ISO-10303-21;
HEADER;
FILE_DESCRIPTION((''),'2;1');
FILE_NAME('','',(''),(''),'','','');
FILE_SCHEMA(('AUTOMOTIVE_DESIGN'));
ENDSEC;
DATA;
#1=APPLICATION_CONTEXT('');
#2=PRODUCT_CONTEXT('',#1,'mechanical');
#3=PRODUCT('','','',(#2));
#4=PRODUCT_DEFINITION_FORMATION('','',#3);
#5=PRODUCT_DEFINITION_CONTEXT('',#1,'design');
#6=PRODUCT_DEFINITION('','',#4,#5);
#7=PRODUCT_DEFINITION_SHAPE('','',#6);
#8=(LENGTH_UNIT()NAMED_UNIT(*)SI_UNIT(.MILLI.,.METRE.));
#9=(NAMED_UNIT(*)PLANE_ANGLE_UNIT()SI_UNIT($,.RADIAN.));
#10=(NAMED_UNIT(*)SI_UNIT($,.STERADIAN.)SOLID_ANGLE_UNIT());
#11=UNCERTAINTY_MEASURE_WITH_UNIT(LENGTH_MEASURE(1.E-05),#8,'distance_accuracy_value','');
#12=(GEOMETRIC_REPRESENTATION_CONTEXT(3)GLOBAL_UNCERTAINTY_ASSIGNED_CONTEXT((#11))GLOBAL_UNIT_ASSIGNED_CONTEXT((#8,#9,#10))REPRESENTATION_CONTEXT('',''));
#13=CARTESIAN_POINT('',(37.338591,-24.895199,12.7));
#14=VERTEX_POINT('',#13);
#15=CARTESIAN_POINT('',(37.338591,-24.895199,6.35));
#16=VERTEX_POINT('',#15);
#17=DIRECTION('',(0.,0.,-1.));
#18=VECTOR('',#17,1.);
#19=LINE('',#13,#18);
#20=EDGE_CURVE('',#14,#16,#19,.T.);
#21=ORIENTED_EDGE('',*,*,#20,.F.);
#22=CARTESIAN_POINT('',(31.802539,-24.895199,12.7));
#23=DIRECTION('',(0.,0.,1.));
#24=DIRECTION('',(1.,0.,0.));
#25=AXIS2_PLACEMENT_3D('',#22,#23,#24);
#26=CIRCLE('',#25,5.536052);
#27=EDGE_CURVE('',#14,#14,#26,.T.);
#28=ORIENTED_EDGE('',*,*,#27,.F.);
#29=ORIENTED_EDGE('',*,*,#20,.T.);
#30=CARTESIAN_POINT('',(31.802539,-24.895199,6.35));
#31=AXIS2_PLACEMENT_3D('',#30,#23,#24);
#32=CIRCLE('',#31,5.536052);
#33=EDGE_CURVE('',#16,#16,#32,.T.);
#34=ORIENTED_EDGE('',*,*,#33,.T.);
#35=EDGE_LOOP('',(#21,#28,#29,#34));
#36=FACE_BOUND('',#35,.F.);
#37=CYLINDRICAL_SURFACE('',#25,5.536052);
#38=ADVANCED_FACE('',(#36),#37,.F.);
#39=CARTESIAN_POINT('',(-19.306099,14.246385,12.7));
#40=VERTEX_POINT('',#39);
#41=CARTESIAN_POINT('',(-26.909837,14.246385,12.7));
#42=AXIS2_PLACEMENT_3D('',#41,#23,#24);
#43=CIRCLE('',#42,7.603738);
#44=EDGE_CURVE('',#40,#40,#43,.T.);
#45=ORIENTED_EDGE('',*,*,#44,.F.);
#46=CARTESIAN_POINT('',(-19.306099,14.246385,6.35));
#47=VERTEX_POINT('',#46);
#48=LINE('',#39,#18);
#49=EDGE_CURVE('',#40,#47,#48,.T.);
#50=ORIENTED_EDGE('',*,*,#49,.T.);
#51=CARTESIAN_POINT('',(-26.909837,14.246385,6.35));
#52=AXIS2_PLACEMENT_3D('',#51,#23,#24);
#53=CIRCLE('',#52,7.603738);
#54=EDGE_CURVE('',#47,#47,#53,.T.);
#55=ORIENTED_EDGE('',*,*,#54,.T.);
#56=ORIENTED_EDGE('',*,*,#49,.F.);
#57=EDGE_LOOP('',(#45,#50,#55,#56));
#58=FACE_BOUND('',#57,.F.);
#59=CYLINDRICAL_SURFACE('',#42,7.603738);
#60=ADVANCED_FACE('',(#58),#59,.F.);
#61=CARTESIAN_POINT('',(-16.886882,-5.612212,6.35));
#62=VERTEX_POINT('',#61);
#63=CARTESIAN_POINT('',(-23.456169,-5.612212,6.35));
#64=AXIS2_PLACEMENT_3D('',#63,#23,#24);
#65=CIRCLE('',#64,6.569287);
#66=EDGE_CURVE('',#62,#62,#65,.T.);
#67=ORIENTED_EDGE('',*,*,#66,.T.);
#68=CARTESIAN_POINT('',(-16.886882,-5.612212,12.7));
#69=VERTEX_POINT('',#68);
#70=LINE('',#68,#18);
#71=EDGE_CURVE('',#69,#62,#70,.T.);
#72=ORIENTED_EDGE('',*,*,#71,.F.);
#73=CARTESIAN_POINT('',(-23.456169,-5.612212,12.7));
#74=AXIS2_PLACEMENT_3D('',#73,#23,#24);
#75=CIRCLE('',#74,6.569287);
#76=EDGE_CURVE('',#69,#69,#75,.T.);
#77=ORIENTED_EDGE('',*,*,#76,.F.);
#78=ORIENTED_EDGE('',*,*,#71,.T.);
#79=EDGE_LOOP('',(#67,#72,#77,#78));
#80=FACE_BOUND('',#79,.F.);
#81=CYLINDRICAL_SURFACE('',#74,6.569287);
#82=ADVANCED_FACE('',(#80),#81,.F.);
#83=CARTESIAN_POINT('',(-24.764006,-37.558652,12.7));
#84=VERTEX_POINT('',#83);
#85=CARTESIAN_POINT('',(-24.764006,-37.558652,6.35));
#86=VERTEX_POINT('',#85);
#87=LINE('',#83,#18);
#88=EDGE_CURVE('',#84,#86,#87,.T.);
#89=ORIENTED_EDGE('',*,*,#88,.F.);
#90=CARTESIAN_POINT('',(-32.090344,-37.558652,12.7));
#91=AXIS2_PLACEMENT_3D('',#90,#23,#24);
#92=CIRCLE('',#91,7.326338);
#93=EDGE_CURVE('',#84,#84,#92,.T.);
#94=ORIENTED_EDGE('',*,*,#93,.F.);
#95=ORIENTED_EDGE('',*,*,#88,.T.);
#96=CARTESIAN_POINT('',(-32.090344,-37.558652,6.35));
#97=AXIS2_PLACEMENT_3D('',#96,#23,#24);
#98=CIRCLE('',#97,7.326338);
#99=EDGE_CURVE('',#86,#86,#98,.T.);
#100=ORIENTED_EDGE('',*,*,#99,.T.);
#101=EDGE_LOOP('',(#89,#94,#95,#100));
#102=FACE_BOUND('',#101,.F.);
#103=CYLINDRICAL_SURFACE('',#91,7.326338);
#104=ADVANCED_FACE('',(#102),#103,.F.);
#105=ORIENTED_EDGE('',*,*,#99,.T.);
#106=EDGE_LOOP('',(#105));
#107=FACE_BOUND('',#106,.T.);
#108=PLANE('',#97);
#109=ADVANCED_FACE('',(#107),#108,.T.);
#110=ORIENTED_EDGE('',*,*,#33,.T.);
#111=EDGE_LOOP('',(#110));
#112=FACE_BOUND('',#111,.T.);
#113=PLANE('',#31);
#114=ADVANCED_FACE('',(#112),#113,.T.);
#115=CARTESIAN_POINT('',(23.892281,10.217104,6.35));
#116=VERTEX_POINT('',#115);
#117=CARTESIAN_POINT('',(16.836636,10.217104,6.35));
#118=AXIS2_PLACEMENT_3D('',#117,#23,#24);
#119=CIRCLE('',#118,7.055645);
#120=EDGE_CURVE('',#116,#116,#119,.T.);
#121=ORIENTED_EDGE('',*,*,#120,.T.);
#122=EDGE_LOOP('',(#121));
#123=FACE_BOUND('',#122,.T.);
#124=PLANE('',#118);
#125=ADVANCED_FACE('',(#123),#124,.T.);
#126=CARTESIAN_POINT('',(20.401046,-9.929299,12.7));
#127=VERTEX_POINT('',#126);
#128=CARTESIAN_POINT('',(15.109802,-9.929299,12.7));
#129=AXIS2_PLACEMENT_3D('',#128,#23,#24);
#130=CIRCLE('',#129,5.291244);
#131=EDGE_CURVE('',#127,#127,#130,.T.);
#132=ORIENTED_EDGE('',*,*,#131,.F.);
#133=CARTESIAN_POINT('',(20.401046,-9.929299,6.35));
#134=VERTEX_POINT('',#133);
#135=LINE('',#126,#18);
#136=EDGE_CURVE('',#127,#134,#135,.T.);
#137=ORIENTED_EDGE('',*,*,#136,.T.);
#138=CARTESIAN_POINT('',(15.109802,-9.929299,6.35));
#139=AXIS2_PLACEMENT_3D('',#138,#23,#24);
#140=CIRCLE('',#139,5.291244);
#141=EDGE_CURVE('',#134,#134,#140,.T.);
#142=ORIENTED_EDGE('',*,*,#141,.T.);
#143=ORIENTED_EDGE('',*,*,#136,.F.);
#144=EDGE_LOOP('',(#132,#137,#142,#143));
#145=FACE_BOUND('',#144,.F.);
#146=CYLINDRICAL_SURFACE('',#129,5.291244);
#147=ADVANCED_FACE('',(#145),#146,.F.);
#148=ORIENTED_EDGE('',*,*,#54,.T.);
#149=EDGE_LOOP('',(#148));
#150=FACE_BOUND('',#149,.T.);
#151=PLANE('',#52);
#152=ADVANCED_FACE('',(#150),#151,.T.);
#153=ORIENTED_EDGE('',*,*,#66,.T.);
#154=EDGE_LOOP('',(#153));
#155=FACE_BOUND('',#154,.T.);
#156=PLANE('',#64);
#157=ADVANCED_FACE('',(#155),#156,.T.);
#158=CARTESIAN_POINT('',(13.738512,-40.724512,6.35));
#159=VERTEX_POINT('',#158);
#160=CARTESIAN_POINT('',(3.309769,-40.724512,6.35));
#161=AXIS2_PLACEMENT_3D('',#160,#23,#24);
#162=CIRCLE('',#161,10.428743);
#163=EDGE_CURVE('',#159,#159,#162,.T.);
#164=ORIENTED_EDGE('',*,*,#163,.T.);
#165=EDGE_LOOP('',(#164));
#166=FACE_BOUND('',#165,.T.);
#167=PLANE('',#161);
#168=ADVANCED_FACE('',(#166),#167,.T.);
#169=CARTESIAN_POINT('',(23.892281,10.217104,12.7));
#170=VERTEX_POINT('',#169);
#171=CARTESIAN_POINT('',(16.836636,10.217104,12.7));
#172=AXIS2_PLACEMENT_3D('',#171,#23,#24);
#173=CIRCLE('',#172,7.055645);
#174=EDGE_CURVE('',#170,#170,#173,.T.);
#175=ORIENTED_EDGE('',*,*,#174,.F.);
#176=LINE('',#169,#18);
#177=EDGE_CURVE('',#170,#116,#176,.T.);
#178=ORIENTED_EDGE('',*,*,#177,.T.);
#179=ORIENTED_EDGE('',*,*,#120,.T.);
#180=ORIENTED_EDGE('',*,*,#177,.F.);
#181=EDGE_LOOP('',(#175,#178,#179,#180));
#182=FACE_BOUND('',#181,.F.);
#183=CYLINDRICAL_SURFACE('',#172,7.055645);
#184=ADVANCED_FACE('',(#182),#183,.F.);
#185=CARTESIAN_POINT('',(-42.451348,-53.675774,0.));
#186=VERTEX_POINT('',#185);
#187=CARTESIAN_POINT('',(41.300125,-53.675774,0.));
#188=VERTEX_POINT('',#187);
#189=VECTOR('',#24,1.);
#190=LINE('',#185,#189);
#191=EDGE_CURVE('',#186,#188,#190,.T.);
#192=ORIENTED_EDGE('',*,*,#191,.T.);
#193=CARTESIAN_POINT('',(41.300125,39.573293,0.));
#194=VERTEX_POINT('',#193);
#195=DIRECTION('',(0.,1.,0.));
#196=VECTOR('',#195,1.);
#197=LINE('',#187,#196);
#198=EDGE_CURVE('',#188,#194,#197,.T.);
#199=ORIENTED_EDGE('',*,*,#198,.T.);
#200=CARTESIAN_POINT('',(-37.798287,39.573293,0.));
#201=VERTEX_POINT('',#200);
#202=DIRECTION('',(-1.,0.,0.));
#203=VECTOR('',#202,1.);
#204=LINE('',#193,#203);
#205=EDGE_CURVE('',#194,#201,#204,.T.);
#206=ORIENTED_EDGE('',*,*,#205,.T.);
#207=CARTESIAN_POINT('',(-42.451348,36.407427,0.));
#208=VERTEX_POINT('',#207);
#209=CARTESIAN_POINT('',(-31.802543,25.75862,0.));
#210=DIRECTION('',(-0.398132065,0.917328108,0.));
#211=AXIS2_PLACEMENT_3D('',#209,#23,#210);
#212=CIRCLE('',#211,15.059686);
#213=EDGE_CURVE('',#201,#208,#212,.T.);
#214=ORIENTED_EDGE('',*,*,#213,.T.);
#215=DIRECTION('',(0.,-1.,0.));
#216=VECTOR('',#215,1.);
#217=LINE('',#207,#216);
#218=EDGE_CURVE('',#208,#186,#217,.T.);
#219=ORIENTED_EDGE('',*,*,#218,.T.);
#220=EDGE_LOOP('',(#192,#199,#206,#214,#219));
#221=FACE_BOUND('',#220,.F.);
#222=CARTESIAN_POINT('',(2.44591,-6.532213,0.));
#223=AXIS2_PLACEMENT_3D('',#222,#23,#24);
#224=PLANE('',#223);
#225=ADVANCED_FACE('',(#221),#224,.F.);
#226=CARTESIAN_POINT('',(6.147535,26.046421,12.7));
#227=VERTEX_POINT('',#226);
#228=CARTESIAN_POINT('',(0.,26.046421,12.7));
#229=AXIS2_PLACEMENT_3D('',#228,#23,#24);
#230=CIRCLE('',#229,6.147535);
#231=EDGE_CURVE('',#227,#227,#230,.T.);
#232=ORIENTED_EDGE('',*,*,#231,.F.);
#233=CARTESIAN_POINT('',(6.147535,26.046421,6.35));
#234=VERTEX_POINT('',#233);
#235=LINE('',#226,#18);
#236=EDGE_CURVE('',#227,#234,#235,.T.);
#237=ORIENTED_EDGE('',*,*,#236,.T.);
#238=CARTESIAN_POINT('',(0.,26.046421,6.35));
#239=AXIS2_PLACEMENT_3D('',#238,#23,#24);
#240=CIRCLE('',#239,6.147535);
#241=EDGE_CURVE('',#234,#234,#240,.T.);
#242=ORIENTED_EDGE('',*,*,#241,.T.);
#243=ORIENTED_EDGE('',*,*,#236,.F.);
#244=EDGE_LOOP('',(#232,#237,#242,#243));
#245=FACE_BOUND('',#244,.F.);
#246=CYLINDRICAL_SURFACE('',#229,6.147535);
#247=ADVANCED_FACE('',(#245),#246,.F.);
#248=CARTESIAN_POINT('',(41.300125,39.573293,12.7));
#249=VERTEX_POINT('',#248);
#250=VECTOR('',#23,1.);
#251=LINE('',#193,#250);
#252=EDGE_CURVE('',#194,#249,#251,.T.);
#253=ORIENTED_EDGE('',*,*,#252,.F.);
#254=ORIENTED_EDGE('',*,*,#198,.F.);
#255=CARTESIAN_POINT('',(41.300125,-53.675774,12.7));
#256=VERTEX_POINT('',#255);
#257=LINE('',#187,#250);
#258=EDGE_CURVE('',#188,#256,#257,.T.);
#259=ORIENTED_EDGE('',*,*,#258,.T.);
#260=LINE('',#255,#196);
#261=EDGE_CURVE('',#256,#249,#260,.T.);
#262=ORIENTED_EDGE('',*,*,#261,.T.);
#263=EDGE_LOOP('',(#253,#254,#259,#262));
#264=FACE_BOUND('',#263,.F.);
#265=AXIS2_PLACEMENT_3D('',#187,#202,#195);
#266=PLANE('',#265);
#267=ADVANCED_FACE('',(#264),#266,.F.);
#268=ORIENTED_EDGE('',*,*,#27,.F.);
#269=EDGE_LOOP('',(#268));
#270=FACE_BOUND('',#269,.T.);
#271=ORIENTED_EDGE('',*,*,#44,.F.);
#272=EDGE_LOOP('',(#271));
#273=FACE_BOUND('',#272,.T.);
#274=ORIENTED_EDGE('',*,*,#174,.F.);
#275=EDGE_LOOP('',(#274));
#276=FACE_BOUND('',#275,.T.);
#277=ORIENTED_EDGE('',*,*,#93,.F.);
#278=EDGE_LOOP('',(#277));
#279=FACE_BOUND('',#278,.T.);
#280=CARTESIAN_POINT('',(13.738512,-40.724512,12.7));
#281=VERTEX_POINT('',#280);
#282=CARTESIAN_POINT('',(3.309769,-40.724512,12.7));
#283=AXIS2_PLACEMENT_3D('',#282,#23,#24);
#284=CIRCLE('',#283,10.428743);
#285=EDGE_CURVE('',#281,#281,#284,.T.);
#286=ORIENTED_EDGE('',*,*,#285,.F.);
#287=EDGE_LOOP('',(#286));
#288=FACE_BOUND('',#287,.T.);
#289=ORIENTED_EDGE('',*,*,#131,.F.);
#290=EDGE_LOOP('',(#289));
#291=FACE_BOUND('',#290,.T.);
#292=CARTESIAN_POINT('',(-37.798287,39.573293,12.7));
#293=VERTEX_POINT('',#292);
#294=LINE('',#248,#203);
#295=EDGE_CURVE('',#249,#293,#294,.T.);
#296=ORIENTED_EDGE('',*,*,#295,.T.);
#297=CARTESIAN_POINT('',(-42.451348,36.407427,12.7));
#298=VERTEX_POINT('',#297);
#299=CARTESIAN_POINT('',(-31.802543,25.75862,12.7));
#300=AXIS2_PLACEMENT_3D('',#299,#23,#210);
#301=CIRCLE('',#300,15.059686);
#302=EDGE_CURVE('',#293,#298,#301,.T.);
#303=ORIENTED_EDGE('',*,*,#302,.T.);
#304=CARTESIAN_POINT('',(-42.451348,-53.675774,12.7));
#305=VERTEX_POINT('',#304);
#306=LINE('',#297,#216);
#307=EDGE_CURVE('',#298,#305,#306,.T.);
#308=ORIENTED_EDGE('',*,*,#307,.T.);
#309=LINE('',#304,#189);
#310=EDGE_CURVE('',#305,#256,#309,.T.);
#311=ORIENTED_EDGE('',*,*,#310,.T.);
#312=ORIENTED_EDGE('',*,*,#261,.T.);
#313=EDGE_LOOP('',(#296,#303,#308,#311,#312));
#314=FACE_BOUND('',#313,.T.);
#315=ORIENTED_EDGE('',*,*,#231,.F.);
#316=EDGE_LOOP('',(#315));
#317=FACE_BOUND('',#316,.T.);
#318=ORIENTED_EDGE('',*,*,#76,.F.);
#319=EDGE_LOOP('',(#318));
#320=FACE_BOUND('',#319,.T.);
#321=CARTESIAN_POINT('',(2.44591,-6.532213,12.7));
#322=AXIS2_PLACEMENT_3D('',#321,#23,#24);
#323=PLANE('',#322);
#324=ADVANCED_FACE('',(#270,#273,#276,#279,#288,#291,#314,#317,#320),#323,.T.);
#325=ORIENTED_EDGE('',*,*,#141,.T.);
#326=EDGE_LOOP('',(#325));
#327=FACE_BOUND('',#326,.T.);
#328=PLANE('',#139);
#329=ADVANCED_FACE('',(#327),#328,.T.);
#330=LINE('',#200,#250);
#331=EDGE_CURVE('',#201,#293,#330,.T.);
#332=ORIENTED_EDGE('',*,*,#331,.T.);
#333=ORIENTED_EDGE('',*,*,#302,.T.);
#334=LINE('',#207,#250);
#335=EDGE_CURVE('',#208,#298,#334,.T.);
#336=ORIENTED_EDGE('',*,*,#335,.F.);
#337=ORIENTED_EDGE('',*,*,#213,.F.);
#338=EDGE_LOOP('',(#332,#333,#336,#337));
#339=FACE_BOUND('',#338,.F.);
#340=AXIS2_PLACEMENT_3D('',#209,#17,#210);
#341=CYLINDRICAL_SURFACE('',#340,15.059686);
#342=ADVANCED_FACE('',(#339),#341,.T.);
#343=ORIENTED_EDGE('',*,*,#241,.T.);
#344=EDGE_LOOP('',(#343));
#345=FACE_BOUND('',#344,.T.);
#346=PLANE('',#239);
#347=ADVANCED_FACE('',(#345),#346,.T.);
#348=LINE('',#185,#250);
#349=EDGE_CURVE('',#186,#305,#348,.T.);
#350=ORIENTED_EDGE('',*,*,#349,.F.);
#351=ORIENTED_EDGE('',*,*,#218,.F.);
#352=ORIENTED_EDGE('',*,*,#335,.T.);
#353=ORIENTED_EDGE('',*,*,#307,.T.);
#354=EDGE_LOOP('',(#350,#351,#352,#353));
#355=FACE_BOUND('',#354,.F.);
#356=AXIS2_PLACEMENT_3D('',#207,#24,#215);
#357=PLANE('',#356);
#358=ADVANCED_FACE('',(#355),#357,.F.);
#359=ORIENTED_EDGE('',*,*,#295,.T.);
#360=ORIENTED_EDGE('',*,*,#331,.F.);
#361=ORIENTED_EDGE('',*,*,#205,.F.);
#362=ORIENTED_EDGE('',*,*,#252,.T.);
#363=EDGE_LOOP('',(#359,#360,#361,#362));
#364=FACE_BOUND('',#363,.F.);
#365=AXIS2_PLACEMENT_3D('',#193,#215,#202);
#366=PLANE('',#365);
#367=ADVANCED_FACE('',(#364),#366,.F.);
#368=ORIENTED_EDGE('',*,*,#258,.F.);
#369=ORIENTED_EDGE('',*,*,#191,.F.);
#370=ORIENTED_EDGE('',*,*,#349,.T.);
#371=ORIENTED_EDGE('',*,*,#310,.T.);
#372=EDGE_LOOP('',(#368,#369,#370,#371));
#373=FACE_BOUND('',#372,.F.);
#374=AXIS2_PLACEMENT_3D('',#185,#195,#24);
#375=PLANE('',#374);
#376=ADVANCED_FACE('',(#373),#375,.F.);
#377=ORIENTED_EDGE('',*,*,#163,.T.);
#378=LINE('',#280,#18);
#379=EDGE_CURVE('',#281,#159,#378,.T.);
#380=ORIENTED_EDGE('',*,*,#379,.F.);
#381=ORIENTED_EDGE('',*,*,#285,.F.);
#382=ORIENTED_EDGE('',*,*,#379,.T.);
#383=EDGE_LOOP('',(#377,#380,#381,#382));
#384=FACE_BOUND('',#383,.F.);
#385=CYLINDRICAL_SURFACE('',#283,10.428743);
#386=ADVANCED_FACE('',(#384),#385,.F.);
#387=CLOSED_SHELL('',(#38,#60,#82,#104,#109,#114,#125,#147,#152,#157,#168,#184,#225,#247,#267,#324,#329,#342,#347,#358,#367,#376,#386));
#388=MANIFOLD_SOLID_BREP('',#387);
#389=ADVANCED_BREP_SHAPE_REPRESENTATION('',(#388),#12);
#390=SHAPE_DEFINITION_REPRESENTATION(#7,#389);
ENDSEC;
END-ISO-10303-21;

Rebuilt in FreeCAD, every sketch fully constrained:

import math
import FreeCAD as App
import Part
import Sketcher
Q = App.Units.Quantity

doc = App.newDocument("Part")
body = doc.addObject("PartDesign::Body", "Body")

sketch1 = doc.addObject("Sketcher::SketchObject", "Sketch")
body.addObject(sketch1)
sketch1.AttachmentSupport = (doc.XY_Plane, [""])
sketch1.MapMode = "FlatFace"
sketch1.addGeometry(Part.LineSegment(App.Vector(-42, -54, 0), App.Vector(41, -54, 0)), False)
sketch1.addGeometry(Part.LineSegment(App.Vector(41, -54, 0), App.Vector(41, 40, 0)), False)
sketch1.addGeometry(Part.LineSegment(App.Vector(41, 40, 0), App.Vector(-38, 40, 0)), False)
sketch1.addGeometry(Part.ArcOfCircle(Part.Circle(App.Vector(-32, 26, 0), App.Vector(0, 0, 1), 15), math.radians(113), math.radians(135)), False)
sketch1.addGeometry(Part.LineSegment(App.Vector(-42, 36, 0), App.Vector(-42, -54, 0)), False)
sketch1.addConstraint(Sketcher.Constraint("Coincident", 0, 2, 1, 1))
sketch1.addConstraint(Sketcher.Constraint("Coincident", 1, 2, 2, 1))
sketch1.addConstraint(Sketcher.Constraint("Coincident", 2, 2, 3, 1))
sketch1.addConstraint(Sketcher.Constraint("Coincident", 3, 2, 4, 1))
sketch1.addConstraint(Sketcher.Constraint("Coincident", 4, 2, 0, 1))
sketch1.addConstraint(Sketcher.Constraint("Horizontal", 0))
sketch1.addConstraint(Sketcher.Constraint("Vertical", 1))
sketch1.addConstraint(Sketcher.Constraint("Horizontal", 2))
sketch1.addConstraint(Sketcher.Constraint("Vertical", 4))
sketch1.addConstraint(Sketcher.Constraint("DistanceY", 4, 2, 4, 1, 90.083201))
sketch1.addConstraint(Sketcher.Constraint("Radius", 3, 15.059686))
sketch1.addConstraint(Sketcher.Constraint("DistanceX", 2, 2, 2, 1, 79.098412))
sketch1.addConstraint(Sketcher.Constraint("DistanceX", 0, 1, 0, 2, 83.751473))
sketch1.addConstraint(Sketcher.Constraint("DistanceY", 1, 1, 1, 2, 93.249067))
sketch1.addConstraint(Sketcher.Constraint("DistanceY", -1, 1, 3, 3, 25.75862))
sketch1.addConstraint(Sketcher.Constraint("DistanceX", 3, 2, -1, 1, 42.451348))
pad1 = doc.addObject("PartDesign::Pad", "Pad")
body.addObject(pad1)
pad1.Profile = sketch1
pad1.Length = Q("0.5 in")

sketch2 = doc.addObject("Sketcher::SketchObject", "Sketch001")
body.addObject(sketch2)
sketch2.AttachmentSupport = (doc.XY_Plane, [""])
sketch2.MapMode = "FlatFace"
sketch2.AttachmentOffset = App.Placement(App.Vector(0, 0, 0.5 * 25.4), App.Rotation())
sketch2.addGeometry(Part.Circle(App.Vector(-27, 14, 0), App.Vector(0, 0, 1), 8), False)
sketch2.addGeometry(Part.Circle(App.Vector(32, -25, 0), App.Vector(0, 0, 1), 6), False)
sketch2.addGeometry(Part.Circle(App.Vector(-32, -38, 0), App.Vector(0, 0, 1), 7), False)
sketch2.addGeometry(Part.Circle(App.Vector(17, 10, 0), App.Vector(0, 0, 1), 7), False)
sketch2.addGeometry(Part.Circle(App.Vector(3, -41, 0), App.Vector(0, 0, 1), 10), False)
sketch2.addGeometry(Part.Circle(App.Vector(0, 26, 0), App.Vector(0, 0, 1), 6), False)
sketch2.addGeometry(Part.Circle(App.Vector(-23, -6, 0), App.Vector(0, 0, 1), 7), False)
sketch2.addGeometry(Part.Circle(App.Vector(15, -10, 0), App.Vector(0, 0, 1), 5), False)
sketch2.addConstraint(Sketcher.Constraint("PointOnObject", 5, 3, -2))
sketch2.addConstraint(Sketcher.Constraint("Diameter", 3, 14.11129))
sketch2.addConstraint(Sketcher.Constraint("Diameter", 5, 12.29507))
sketch2.addConstraint(Sketcher.Constraint("Diameter", 0, 15.207476))
sketch2.addConstraint(Sketcher.Constraint("Diameter", 1, 11.072104))
sketch2.addConstraint(Sketcher.Constraint("Diameter", 2, 14.652676))
sketch2.addConstraint(Sketcher.Constraint("Diameter", 4, 20.857486))
sketch2.addConstraint(Sketcher.Constraint("Diameter", 6, 13.138574))
sketch2.addConstraint(Sketcher.Constraint("Diameter", 7, 10.582488))
sketch2.addConstraint(Sketcher.Constraint("DistanceY", 1, 3, -1, 1, 24.895199))
sketch2.addConstraint(Sketcher.Constraint("DistanceY", 7, 3, -1, 1, 9.929299))
sketch2.addConstraint(Sketcher.Constraint("DistanceY", 4, 3, 6, 3, 35.1123))
sketch2.addConstraint(Sketcher.Constraint("DistanceX", -1, 1, 1, 3, 31.802539))
sketch2.addConstraint(Sketcher.Constraint("DistanceX", -1, 1, 4, 3, 3.309769))
sketch2.addConstraint(Sketcher.Constraint("DistanceY", 4, 3, -1, 1, 40.724512))
sketch2.addConstraint(Sketcher.Constraint("DistanceY", -1, 1, 5, 3, 26.046421))
sketch2.addConstraint(Sketcher.Constraint("DistanceX", 6, 3, -1, 1, 23.456169))
sketch2.addConstraint(Sketcher.Constraint("DistanceY", 3, 3, 0, 3, 4.029281))
sketch2.addConstraint(Sketcher.Constraint("DistanceX", 2, 3, 3, 3, 48.92698))
sketch2.addConstraint(Sketcher.Constraint("DistanceY", 4, 3, 2, 3, 3.16586))
sketch2.addConstraint(Sketcher.Constraint("DistanceX", 0, 3, 6, 3, 3.453668))
sketch2.addConstraint(Sketcher.Constraint("DistanceX", 6, 3, 7, 3, 38.565971))
sketch2.addConstraint(Sketcher.Constraint("DistanceY", -1, 1, 0, 3, 14.246385))
sketch2.addConstraint(Sketcher.Constraint("DistanceX", 2, 3, -1, 1, 32.090344))
pocket1 = doc.addObject("PartDesign::Pocket", "Pocket")
body.addObject(pocket1)
pocket1.Profile = sketch2
pocket1.Length = Q("0.25 in")

doc.recompute()
